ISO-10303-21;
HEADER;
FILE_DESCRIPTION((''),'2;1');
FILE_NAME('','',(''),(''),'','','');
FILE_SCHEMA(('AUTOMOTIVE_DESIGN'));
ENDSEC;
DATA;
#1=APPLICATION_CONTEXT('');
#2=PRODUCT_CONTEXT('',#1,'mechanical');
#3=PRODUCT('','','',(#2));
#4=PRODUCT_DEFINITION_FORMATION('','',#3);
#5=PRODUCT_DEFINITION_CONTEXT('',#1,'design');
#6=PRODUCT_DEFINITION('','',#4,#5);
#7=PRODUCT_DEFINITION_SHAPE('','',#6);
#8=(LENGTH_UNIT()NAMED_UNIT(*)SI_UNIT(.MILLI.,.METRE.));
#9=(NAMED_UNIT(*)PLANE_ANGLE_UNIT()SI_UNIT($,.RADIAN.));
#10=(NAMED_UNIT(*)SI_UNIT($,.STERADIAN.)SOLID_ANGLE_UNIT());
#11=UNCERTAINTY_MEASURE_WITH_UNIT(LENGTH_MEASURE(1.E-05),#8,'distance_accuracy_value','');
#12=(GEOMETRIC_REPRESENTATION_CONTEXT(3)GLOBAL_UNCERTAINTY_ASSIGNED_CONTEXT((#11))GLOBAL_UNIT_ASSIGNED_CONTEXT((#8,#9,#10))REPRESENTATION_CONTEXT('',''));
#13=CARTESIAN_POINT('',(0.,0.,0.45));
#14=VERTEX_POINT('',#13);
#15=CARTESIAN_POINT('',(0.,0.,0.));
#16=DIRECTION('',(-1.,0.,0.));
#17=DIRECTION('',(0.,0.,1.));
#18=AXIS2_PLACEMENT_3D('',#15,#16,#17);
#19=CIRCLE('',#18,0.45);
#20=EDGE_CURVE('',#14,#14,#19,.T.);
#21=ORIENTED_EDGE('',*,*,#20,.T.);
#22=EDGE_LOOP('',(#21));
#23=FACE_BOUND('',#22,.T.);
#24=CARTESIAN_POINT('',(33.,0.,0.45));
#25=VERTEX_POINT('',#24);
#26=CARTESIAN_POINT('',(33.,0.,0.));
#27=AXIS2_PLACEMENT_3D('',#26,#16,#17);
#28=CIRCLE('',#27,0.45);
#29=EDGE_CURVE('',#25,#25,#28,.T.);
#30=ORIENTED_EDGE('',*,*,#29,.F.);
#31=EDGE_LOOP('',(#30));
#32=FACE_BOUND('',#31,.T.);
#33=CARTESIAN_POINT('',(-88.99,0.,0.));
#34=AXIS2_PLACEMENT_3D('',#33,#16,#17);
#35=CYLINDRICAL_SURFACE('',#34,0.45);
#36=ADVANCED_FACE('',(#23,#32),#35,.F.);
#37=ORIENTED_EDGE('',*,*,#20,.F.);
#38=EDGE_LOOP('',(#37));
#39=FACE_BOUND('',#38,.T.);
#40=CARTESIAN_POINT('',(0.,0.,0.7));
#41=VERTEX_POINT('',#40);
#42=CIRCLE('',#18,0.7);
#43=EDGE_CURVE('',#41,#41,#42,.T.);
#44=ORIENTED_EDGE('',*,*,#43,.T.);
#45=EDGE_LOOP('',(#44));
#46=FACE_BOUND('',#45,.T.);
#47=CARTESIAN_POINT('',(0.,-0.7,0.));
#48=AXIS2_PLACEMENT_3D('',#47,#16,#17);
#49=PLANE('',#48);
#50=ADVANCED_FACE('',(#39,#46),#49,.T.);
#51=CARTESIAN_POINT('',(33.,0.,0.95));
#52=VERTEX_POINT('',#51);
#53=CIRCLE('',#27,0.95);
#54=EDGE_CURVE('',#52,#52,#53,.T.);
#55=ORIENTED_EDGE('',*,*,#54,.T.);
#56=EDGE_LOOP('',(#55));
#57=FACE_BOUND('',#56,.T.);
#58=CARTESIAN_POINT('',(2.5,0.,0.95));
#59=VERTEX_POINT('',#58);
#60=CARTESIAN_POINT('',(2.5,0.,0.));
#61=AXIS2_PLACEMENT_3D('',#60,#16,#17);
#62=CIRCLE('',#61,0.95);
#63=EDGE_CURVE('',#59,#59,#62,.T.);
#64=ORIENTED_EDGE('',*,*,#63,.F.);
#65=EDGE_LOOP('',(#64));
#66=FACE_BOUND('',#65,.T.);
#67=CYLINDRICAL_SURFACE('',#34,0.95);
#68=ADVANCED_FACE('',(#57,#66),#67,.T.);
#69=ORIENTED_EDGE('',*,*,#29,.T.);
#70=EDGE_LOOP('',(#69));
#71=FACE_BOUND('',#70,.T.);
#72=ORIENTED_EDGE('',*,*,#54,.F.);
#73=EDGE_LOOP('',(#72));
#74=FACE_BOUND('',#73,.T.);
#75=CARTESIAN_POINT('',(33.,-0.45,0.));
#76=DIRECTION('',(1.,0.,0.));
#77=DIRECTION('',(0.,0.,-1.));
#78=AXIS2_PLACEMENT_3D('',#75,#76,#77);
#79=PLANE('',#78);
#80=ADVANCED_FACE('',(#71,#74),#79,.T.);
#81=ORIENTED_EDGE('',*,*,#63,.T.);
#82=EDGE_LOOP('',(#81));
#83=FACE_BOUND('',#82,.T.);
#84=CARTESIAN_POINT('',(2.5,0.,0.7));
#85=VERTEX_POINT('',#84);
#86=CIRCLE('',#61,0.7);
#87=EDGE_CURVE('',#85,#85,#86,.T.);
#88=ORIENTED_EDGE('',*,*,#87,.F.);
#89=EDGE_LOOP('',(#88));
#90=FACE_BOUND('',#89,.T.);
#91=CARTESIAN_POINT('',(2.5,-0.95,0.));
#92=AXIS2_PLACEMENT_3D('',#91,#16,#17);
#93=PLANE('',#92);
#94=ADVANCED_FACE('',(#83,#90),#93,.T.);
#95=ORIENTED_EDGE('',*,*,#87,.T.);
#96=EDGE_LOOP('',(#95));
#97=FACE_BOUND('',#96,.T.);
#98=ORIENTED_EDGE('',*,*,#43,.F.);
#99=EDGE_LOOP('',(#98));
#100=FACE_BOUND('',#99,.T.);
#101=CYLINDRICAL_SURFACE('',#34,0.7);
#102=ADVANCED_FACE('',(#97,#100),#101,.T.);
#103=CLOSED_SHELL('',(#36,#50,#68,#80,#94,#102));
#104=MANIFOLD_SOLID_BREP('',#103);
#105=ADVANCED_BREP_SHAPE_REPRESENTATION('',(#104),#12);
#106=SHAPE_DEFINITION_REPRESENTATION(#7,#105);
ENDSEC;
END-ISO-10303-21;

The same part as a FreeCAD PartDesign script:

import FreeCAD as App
import Part
import Sketcher

doc = App.newDocument("Part")
body = doc.addObject("PartDesign::Body", "Body")

# Sketch on XY plane
sketch1 = body.newObject("Sketcher::SketchObject", "Sketch")
sketch1.AttachmentSupport = (doc.getObject("XY_Plane"), [""])
sketch1.MapMode = "FlatFace"
sketch1.addGeometry(Part.LineSegment(App.Vector(33, -0.45, 0), App.Vector(0, -0.45, 0)), False)
sketch1.addGeometry(Part.LineSegment(App.Vector(0, -0.45, 0), App.Vector(0, -0.7, 0)), False)
sketch1.addGeometry(Part.LineSegment(App.Vector(0, -0.7, 0), App.Vector(2.5, -0.7, 0)), False)
sketch1.addGeometry(Part.LineSegment(App.Vector(2.5, -0.7, 0), App.Vector(2.5, -0.95, 0)), False)
sketch1.addGeometry(Part.LineSegment(App.Vector(2.5, -0.95, 0), App.Vector(33, -0.95, 0)), False)
sketch1.addGeometry(Part.LineSegment(App.Vector(33, -0.95, 0), App.Vector(33, -0.45, 0)), False)
sketch1.addConstraint(Sketcher.Constraint("Coincident", 0, 2, 1, 1))
sketch1.addConstraint(Sketcher.Constraint("Coincident", 1, 2, 2, 1))
sketch1.addConstraint(Sketcher.Constraint("Coincident", 2, 2, 3, 1))
sketch1.addConstraint(Sketcher.Constraint("Coincident", 3, 2, 4, 1))
sketch1.addConstraint(Sketcher.Constraint("Coincident", 4, 2, 5, 1))
sketch1.addConstraint(Sketcher.Constraint("Coincident", 5, 2, 0, 1))
sketch1.addConstraint(Sketcher.Constraint("Horizontal", 0))
sketch1.addConstraint(Sketcher.Constraint("Vertical", 1))
sketch1.addConstraint(Sketcher.Constraint("Horizontal", 2))
sketch1.addConstraint(Sketcher.Constraint("Vertical", 3))
sketch1.addConstraint(Sketcher.Constraint("Horizontal", 4))
sketch1.addConstraint(Sketcher.Constraint("Vertical", 5))
sketch1.addConstraint(Sketcher.Constraint("PointOnObject", 0, 2, -2))
sketch1.addConstraint(Sketcher.Constraint("Equal", 1, 3))
sketch1.addConstraint(Sketcher.Constraint("DistanceX", 0, 2, 0, 1, 33.0))
sketch1.addConstraint(Sketcher.Constraint("DistanceX", 2, 1, 2, 2, 2.5))
sketch1.addConstraint(Sketcher.Constraint("DistanceY", 5, 1, 5, 2, 0.5))
sketch1.addConstraint(Sketcher.Constraint("DistanceY", 1, 2, -1, 1, 0.7))
revolution = body.newObject("PartDesign::Revolution", "Revolution")
revolution.Profile = sketch1
revolution.ReferenceAxis = (sketch1, ["H_Axis"])
revolution.Angle = 360

doc.recompute()
